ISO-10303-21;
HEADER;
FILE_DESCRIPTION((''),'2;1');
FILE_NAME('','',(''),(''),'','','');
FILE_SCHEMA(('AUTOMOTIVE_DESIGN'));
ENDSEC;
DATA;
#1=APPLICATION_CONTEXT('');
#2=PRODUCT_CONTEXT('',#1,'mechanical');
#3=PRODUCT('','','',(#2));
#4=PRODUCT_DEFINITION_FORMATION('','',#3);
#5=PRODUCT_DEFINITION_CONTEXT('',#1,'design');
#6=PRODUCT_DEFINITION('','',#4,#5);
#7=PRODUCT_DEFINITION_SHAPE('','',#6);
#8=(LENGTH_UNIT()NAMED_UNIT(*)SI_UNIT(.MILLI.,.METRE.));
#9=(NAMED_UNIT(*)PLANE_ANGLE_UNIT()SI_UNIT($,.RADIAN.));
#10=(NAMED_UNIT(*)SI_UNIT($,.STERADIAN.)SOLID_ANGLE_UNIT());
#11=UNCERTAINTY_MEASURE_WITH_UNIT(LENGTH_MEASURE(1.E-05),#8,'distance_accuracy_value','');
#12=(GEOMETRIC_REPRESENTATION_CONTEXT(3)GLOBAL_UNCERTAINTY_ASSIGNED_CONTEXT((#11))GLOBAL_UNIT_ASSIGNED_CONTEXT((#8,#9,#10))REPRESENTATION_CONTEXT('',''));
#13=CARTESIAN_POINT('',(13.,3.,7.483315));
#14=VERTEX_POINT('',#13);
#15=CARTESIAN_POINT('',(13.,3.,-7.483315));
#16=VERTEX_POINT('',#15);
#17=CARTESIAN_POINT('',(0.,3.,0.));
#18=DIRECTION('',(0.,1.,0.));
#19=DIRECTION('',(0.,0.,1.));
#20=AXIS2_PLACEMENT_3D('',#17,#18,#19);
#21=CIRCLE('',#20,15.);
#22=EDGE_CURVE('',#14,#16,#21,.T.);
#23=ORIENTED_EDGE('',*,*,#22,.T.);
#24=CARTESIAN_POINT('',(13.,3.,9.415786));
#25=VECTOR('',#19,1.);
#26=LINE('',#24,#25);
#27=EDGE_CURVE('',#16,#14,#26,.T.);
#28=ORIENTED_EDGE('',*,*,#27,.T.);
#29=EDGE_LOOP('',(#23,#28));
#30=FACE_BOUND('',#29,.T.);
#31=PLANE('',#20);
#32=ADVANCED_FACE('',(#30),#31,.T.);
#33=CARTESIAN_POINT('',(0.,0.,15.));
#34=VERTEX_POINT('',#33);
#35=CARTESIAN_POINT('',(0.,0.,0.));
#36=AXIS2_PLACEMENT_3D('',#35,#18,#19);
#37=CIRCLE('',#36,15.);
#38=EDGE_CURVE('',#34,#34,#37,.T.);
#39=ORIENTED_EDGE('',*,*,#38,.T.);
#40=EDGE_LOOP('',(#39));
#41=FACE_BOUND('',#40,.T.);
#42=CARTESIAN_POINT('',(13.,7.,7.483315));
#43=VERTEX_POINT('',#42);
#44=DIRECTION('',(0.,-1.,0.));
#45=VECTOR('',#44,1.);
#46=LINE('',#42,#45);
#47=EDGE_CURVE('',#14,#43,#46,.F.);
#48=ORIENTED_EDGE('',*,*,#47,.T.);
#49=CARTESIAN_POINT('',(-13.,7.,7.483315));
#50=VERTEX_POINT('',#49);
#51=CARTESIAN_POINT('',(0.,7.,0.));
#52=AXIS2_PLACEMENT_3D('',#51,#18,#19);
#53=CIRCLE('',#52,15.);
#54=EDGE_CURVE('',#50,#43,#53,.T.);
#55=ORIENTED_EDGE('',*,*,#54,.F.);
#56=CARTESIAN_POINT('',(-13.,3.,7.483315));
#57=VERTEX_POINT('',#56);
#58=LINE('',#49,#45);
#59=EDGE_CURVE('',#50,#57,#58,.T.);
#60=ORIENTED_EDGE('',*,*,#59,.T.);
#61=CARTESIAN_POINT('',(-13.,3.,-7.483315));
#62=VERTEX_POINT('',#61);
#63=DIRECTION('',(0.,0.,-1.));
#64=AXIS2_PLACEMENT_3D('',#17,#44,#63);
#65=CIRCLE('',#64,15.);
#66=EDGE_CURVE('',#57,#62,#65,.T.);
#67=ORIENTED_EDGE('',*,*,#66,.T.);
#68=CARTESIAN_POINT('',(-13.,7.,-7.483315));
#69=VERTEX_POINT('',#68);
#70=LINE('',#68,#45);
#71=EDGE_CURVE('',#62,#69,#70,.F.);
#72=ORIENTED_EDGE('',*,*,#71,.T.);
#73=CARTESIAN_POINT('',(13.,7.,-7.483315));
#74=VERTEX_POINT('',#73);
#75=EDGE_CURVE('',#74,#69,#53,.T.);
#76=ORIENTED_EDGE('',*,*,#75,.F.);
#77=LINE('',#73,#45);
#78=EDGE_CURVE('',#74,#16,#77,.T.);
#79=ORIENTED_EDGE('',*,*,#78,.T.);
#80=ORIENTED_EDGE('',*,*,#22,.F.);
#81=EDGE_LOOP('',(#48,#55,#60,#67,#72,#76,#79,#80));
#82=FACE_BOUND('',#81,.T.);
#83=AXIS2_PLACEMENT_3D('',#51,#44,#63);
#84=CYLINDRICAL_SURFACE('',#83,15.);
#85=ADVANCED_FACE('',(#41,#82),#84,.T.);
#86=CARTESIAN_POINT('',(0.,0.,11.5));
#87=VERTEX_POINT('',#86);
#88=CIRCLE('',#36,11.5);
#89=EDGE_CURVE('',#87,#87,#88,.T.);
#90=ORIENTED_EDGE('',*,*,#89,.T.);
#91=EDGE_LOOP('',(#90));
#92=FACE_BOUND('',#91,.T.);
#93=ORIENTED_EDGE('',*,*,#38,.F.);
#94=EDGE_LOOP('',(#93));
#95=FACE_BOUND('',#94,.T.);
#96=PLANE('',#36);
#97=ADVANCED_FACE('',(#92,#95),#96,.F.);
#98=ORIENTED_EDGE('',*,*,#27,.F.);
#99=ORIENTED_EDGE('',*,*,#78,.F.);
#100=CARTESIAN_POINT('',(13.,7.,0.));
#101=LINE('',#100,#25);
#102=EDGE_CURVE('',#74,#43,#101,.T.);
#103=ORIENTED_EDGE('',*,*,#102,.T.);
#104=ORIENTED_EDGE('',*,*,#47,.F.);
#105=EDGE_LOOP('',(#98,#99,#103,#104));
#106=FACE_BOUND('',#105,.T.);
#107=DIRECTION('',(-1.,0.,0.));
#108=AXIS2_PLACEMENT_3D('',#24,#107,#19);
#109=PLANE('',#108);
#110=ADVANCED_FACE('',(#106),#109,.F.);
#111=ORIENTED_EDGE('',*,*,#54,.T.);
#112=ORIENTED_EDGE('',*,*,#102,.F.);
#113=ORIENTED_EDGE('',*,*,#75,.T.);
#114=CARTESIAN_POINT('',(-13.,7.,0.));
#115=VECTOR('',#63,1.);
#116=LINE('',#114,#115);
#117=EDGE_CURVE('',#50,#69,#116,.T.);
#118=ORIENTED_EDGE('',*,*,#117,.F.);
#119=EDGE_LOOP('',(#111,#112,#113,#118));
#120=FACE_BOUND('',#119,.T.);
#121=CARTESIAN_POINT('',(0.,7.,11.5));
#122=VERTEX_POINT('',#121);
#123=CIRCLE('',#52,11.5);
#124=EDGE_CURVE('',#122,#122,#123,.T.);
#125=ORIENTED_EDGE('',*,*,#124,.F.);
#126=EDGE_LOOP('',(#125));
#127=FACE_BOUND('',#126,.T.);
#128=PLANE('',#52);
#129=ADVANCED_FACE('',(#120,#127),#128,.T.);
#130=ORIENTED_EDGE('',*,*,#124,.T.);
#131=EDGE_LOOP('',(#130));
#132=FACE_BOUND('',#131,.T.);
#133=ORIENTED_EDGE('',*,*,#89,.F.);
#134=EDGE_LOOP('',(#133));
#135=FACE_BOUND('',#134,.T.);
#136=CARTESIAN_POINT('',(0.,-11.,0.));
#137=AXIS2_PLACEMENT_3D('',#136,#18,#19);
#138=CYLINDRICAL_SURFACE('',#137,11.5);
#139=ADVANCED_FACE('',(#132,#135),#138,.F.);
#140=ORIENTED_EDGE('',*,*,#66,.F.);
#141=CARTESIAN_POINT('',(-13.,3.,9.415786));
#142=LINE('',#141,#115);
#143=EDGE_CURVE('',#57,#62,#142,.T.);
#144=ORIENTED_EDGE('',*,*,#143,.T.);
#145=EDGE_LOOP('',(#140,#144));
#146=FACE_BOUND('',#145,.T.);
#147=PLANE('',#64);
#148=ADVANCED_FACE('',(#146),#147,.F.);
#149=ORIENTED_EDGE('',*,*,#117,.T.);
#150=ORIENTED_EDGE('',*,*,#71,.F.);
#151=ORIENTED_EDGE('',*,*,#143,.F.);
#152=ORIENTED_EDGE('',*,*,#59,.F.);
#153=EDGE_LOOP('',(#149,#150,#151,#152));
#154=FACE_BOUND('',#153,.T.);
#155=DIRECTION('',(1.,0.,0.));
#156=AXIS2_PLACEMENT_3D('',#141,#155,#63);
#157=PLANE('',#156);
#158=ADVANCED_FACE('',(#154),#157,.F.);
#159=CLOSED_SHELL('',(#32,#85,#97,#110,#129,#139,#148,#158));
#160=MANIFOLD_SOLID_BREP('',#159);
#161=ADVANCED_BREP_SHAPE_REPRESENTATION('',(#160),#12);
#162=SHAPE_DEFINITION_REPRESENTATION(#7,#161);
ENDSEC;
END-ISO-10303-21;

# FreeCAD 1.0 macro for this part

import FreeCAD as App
import Part
import Sketcher

V = App.Vector
Q = App.Units.Quantity


def add_polygon(sketch, points):
    """Adds a closed chain of lines whose ends are joined by coincident constraints."""
    first, n = sketch.GeometryCount, len(points)
    for a, b in zip(points, points[1:] + points[:1]):
        sketch.addGeometry(Part.LineSegment(App.Vector(*a, 0), App.Vector(*b, 0)), False)
    for i in range(n):
        sketch.addConstraint(Sketcher.Constraint("Coincident", first + i, 2, first + (i + 1) % n, 1))

doc = App.newDocument("Part")
body = doc.addObject("PartDesign::Body", "Body")

sketch1 = doc.addObject("Sketcher::SketchObject", "Sketch")
body.addObject(sketch1)
sketch1.AttachmentSupport = (doc.XZ_Plane, [""])
sketch1.MapMode = "FlatFace"
sketch1.addGeometry(Part.Circle(V(0, 0, 0), V(0, 0, 1), 15), False)
sketch1.addConstraint([
    Sketcher.Constraint("Coincident", 0, 3, -1, 1),
    Sketcher.Constraint("Diameter", 0, Q("30 mm")),
])
pad1 = doc.addObject("PartDesign::Pad", "Pad")
body.addObject(pad1)
pad1.Profile = sketch1
pad1.Length = 7
pad1.Reversed = True

sketch2 = doc.addObject("Sketcher::SketchObject", "Sketch001")
body.addObject(sketch2)
sketch2.AttachmentSupport = (doc.XZ_Plane, [""])
sketch2.MapMode = "FlatFace"
sketch2.AttachmentOffset = App.Placement(V(0, 0, -7), App.Rotation())
sketch2.addGeometry(Part.Circle(V(0, 0, 0), V(0, 0, 1), 12), False)
sketch2.addConstraint([
    Sketcher.Constraint("Coincident", 0, 3, -1, 1),
    Sketcher.Constraint("Diameter", 0, Q("23 mm")),
])
pocket1 = doc.addObject("PartDesign::Pocket", "Pocket")
body.addObject(pocket1)
pocket1.Profile = sketch2
pocket1.Length = 18
pocket1.Reversed = True

sketch3 = doc.addObject("Sketcher::SketchObject", "Sketch002")
body.addObject(sketch3)
sketch3.AttachmentSupport = (doc.XZ_Plane, [""])
sketch3.MapMode = "FlatFace"
sketch3.AttachmentOffset = App.Placement(V(0, 0, -7), App.Rotation())
add_polygon(sketch3, [(13, -9.4), (13, 9.4), (17, 9.4), (17, -9.4)])
add_polygon(sketch3, [(-17, -9.4), (-17, 9.4), (-13, 9.4), (-13, -9.4)])
sketch3.addConstraint([
    Sketcher.Constraint("Vertical", 0),
    Sketcher.Constraint("Horizontal", 1),
    Sketcher.Constraint("Vertical", 2),
    Sketcher.Constraint("Horizontal", 3),
    Sketcher.Constraint("Vertical", 4),
    Sketcher.Constraint("Horizontal", 5),
    Sketcher.Constraint("Vertical", 6),
    Sketcher.Constraint("Horizontal", 7),
    Sketcher.Constraint("Symmetric", 2, 2, 4, 2, -1, 1),
    Sketcher.Constraint("Symmetric", 0, 2, 6, 2, -1, 1),
    Sketcher.Constraint("Horizontal", 1, 2, 4, 2),
    Sketcher.Constraint("DistanceX", 1, 1, 1, 2, Q("4 mm")),
    Sketcher.Constraint("DistanceX", -1, 1, 0, 2, Q("13 mm")),
    Sketcher.Constraint("DistanceY", 0, 1, 0, 2, Q("18.831571 mm")),
])
pocket2 = doc.addObject("PartDesign::Pocket", "Pocket001")
body.addObject(pocket2)
pocket2.Profile = sketch3
pocket2.Length = 4
pocket2.Reversed = True

doc.recompute()
